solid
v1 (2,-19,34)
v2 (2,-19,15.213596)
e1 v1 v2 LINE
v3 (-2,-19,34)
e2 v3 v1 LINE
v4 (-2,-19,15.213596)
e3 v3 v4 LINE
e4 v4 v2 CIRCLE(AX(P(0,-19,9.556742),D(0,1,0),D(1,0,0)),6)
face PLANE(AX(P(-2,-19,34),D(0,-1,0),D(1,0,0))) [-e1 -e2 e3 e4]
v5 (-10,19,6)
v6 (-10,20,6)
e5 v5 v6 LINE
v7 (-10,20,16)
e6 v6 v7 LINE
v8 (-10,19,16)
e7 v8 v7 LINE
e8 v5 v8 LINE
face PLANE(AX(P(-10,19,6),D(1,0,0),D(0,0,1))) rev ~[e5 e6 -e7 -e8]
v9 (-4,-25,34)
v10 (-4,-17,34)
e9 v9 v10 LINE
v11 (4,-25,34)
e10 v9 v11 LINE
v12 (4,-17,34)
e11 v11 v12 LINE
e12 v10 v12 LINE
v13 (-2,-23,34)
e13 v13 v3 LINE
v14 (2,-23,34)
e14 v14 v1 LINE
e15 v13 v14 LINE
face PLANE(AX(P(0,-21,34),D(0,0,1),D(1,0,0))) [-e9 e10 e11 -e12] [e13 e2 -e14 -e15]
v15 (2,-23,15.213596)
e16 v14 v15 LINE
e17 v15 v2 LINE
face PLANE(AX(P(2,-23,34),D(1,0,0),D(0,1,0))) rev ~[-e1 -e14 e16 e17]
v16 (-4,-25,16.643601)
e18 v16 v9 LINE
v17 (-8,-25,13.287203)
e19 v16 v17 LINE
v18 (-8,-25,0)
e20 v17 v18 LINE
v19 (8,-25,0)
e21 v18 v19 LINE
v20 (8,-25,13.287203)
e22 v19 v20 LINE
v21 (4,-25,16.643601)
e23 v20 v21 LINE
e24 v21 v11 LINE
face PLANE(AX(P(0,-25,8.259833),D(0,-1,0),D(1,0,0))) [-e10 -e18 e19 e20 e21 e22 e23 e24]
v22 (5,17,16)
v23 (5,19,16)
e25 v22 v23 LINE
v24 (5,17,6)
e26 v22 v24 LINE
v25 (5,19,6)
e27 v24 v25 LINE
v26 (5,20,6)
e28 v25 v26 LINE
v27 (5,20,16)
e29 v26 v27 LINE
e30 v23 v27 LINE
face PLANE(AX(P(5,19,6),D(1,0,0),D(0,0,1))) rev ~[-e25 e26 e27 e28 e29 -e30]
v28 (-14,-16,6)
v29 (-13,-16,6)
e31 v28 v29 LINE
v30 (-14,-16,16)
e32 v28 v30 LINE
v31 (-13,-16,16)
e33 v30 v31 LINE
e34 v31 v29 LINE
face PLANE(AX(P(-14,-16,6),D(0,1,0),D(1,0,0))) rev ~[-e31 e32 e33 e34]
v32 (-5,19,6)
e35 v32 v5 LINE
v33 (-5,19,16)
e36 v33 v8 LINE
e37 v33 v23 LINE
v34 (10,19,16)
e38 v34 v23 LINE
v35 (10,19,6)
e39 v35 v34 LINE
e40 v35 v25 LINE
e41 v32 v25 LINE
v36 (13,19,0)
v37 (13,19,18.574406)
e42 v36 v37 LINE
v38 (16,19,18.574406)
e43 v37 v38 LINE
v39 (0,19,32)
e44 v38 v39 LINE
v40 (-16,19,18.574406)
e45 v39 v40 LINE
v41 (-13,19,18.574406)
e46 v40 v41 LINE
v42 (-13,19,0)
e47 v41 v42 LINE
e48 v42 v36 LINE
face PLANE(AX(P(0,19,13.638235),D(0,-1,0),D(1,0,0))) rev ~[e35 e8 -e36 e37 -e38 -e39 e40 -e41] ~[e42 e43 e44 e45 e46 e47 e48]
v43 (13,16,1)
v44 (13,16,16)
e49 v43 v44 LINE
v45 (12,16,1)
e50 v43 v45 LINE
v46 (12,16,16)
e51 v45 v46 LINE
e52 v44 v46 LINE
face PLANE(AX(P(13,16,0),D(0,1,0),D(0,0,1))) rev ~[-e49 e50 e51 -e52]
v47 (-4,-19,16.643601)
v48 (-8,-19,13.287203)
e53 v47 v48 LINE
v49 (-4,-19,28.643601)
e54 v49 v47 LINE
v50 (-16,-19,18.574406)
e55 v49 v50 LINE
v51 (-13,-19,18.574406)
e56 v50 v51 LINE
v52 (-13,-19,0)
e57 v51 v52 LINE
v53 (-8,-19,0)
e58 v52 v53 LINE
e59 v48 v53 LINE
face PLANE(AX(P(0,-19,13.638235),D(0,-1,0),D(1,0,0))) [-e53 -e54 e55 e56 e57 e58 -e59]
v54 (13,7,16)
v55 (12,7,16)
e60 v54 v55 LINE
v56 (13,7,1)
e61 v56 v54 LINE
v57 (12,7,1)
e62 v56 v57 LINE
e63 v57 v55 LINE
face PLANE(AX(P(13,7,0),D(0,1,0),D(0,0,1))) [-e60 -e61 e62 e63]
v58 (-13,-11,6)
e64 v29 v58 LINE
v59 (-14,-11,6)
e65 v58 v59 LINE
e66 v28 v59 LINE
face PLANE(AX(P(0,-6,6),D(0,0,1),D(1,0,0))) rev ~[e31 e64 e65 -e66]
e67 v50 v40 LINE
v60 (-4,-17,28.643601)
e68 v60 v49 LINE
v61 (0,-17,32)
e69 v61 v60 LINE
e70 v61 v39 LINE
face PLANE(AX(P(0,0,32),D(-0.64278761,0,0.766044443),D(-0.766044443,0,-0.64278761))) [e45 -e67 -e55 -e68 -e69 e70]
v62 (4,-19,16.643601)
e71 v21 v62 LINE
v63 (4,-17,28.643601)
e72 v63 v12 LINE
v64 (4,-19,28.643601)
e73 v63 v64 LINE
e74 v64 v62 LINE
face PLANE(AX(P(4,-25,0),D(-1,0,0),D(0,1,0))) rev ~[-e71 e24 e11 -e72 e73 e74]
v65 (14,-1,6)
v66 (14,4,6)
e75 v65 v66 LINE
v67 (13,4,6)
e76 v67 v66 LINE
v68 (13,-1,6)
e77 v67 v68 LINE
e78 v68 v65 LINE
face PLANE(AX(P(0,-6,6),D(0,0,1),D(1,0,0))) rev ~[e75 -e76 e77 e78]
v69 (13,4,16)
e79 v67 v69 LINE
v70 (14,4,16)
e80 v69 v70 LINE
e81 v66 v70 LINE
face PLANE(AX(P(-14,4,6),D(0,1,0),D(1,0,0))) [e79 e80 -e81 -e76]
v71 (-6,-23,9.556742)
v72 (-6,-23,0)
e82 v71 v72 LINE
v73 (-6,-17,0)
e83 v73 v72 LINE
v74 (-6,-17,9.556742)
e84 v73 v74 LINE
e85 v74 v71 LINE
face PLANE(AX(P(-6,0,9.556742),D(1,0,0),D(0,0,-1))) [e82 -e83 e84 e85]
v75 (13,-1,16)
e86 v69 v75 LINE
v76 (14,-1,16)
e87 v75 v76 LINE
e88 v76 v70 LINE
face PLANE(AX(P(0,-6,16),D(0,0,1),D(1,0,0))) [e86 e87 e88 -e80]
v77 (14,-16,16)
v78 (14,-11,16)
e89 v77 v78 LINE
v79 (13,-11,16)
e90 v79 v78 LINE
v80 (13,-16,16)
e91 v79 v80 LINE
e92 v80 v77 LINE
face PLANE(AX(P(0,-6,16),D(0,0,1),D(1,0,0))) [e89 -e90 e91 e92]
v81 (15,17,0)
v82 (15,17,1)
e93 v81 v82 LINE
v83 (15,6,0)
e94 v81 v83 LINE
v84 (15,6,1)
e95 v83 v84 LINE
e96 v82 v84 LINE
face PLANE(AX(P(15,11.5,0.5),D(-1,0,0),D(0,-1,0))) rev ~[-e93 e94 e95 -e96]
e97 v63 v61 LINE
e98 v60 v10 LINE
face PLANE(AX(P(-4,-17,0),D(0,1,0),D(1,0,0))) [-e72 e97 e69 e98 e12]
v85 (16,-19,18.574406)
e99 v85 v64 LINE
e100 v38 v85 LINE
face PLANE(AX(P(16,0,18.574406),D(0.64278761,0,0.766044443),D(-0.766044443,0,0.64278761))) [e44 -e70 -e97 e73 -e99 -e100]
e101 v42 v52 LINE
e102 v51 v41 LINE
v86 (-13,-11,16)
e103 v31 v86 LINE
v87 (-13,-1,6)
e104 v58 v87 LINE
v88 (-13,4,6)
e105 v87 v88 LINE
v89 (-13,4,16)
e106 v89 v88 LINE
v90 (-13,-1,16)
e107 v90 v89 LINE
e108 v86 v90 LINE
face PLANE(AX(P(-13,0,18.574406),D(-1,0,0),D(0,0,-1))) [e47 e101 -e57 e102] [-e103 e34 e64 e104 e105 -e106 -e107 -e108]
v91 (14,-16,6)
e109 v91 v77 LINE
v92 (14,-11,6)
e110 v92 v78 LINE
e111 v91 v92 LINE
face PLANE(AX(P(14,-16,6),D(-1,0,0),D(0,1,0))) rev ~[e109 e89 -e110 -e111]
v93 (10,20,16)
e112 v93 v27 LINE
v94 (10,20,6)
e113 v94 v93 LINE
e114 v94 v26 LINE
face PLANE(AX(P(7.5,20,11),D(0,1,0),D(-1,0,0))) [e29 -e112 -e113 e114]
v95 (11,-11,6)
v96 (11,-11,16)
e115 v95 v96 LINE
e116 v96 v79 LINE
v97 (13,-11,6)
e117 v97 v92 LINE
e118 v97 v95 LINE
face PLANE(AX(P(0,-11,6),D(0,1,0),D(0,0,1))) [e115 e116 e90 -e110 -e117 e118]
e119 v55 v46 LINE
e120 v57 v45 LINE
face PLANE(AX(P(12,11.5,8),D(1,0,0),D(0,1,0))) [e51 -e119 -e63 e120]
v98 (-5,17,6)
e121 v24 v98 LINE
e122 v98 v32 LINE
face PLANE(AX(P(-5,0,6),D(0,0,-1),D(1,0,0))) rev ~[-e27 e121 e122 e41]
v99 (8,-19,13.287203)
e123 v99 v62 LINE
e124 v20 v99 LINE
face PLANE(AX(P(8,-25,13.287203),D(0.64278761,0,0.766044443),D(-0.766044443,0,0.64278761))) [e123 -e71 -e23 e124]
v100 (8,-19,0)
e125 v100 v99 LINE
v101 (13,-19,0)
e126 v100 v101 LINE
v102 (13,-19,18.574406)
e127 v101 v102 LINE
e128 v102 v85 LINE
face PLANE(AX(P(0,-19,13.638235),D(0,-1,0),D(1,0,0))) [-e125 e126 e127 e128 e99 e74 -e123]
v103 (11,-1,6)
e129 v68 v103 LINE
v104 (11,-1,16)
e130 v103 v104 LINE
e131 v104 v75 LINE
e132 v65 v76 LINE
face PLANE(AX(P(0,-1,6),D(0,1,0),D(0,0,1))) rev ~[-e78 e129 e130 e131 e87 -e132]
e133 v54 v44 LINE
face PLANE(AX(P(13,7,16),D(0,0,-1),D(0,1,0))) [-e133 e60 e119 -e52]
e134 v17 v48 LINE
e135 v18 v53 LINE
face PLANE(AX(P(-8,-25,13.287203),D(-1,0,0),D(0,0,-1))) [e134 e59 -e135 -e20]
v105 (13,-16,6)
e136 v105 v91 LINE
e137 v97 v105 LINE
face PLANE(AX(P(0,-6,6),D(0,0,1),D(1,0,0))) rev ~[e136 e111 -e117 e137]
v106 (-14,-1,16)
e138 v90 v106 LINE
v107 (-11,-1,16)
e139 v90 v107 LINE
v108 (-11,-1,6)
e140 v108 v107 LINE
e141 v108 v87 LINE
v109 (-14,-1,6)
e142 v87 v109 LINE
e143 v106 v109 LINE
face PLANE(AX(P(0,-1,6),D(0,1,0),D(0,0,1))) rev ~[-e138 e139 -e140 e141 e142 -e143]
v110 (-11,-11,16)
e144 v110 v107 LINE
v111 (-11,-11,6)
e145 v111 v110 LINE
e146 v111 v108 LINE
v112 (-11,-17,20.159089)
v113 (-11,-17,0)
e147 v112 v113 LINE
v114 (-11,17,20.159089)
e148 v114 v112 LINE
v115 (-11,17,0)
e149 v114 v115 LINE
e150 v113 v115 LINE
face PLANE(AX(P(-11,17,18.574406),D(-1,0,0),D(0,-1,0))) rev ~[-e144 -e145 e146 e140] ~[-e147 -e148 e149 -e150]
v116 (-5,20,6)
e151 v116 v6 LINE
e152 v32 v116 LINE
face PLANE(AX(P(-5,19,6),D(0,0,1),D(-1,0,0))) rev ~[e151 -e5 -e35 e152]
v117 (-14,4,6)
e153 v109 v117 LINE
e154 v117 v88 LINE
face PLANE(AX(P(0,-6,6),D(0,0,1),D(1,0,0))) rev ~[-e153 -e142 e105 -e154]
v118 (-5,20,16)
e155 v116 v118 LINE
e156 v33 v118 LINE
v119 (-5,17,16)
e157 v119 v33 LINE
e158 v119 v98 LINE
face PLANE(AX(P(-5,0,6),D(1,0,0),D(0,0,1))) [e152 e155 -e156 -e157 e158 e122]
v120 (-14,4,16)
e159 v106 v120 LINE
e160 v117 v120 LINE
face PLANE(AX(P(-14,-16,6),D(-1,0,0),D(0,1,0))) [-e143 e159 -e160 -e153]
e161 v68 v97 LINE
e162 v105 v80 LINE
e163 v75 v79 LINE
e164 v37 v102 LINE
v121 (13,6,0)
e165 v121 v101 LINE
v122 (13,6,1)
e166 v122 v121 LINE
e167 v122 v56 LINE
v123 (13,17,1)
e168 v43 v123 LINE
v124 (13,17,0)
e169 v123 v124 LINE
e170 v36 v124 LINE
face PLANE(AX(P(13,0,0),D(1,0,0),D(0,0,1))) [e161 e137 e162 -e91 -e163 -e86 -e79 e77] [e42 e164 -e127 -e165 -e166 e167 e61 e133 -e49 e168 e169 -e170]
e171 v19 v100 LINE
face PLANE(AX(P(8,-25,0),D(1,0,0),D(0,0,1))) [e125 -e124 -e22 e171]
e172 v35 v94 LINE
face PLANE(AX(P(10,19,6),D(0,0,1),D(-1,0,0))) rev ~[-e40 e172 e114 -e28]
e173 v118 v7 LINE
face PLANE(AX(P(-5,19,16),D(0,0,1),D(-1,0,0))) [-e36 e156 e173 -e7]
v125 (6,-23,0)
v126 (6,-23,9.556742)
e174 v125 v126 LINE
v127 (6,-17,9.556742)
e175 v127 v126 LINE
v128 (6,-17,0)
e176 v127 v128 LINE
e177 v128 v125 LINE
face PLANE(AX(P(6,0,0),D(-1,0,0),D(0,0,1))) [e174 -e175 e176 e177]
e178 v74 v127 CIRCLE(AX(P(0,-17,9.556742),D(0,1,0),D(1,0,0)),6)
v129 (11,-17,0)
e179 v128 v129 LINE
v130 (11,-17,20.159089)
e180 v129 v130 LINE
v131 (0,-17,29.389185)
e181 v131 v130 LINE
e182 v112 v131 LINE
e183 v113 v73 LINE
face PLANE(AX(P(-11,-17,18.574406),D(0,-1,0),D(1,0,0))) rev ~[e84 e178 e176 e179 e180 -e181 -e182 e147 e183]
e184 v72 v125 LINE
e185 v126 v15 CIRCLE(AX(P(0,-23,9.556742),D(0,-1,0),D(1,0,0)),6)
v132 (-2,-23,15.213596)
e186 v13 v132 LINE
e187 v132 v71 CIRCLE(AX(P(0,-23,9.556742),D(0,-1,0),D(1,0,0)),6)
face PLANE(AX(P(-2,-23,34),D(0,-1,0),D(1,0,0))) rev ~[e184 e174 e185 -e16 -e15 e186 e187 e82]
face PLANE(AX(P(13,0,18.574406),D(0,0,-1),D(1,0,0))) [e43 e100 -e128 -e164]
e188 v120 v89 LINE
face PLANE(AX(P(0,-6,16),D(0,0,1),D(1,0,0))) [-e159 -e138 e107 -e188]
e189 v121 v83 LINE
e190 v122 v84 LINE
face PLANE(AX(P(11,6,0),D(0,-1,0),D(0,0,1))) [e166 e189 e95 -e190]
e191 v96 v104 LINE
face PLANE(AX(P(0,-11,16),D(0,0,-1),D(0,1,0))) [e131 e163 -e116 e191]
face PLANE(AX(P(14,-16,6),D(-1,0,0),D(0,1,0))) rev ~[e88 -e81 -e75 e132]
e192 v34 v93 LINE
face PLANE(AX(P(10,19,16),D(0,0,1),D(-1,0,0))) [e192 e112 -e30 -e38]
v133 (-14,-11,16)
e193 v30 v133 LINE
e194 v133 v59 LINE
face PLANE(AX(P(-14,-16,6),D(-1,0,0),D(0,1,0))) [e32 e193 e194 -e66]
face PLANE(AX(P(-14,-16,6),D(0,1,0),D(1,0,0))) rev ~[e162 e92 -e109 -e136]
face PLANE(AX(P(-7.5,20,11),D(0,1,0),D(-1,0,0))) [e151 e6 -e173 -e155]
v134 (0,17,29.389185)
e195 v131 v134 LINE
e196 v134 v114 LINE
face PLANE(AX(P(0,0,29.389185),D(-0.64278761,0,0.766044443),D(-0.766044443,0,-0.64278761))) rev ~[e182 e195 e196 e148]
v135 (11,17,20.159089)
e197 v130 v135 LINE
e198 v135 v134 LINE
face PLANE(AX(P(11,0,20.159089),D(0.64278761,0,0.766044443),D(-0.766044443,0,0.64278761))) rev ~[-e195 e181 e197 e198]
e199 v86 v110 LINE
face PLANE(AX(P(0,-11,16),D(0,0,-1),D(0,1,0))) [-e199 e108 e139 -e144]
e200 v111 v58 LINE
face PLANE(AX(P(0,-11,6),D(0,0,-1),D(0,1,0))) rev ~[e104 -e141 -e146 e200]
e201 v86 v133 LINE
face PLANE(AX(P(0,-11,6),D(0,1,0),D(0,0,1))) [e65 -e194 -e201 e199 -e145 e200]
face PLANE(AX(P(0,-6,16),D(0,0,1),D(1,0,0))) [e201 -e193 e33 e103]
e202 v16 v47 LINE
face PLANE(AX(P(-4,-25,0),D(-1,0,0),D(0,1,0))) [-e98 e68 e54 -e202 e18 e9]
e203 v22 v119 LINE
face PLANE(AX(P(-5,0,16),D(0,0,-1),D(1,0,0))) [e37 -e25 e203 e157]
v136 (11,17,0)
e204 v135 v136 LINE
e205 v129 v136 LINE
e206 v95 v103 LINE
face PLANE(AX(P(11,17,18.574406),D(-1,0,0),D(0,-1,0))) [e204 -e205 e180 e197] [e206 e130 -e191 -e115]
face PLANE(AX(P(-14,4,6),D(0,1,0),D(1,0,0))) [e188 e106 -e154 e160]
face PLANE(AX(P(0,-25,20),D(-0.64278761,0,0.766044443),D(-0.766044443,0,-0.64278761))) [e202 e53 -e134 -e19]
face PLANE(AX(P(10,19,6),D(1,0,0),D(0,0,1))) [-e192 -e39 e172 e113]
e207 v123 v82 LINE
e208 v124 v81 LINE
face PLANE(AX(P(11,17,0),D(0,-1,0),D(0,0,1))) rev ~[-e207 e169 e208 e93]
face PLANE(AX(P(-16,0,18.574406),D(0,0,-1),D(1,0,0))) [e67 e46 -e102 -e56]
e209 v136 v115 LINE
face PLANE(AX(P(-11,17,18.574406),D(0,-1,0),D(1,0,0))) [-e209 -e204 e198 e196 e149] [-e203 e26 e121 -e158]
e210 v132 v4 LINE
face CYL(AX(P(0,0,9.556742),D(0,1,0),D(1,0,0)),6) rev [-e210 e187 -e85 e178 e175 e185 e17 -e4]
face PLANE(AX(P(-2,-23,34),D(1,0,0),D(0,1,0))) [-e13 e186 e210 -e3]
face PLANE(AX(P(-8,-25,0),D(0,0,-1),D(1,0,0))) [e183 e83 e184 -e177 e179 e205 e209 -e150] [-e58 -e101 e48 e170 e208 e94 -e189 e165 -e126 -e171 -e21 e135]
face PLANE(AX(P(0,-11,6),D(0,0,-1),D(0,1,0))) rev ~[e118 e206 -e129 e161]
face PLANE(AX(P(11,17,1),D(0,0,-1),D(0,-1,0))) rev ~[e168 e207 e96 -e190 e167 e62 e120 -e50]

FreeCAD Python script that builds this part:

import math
import FreeCAD as App
import Part
import Sketcher

V = App.Vector
Q = App.Units.Quantity

doc = App.newDocument("Part")
params = doc.addObject("Spreadsheet::Sheet", "Params")
for row, (alias, value) in enumerate([
    ("sketch1_width", "26 mm"),
    ("sketch1_width2", "3 mm"),
    ("pad1_length", "38 mm"),
    ("sketch2_width", "10 mm"),
    ("sketch3_width", "28 mm"),
    ("sketch3_height", "20 mm"),
    ("pad2_length", "10 mm"),
    ("sketch4_width", "10 mm"),
    ("sketch5_width", "5 mm"),
    ("sketch5_height", "10 mm"),
    ("pad3_length", "1 mm"),
    ("sketch6_width", "22 mm"),
    ("sketch6_height", "34 mm"),
    ("sketch7_width", "22 mm"),
    ("pocket4_length", "17 mm"),
    ("pocket4_length2", "17 mm"),
    ("sketch8_width", "8 mm"),
    ("pad4_length", "34 mm"),
    ("sketch9_width", "16 mm"),
    ("sketch10_width", "4 mm"),
    ("sketch11_radius", "6 mm"),
    ("pocket6_length", "23 mm"),
    ("sketch12_width", "9 mm"),
    ("sketch12_height", "16 mm"),
    ("pocket7_length", "1 mm"),
    ("sketch13_width", "11 mm"),
    ("sketch13_height", "1 mm"),
    ("pad6_length", "4 mm"),
], start=1):
    params.set(f"A{row}", alias)
    params.set(f"B{row}", "=" + value)
    params.setAlias(f"B{row}", alias)

body = doc.addObject("PartDesign::Body", "Body")

sketch1 = doc.addObject("Sketcher::SketchObject", "Sketch")
body.addObject(sketch1)
sketch1.AttachmentSupport = (doc.XZ_Plane, [""])
sketch1.MapMode = "FlatFace"
sketch1.addGeometry(Part.LineSegment(V(-13, 18.574406, 0), V(-13, 0, 0)), False)
sketch1.addGeometry(Part.LineSegment(V(-13, 0, 0), V(13, 0, 0)), False)
sketch1.addGeometry(Part.LineSegment(V(13, 0, 0), V(13, 18.574406, 0)), False)
sketch1.addGeometry(Part.LineSegment(V(13, 18.574406, 0), V(16, 18.574406, 0)), False)
sketch1.addGeometry(Part.LineSegment(V(16, 18.574406, 0), V(0, 32, 0)), False)
sketch1.addGeometry(Part.LineSegment(V(0, 32, 0), V(-16, 18.574406, 0)), False)
sketch1.addGeometry(Part.LineSegment(V(-16, 18.574406, 0), V(-13, 18.574406, 0)), False)
sketch1.addConstraint(Sketcher.Constraint("Coincident", 0, 2, 1, 1))
sketch1.addConstraint(Sketcher.Constraint("Coincident", 1, 2, 2, 1))
sketch1.addConstraint(Sketcher.Constraint("Coincident", 2, 2, 3, 1))
sketch1.addConstraint(Sketcher.Constraint("Coincident", 3, 2, 4, 1))
sketch1.addConstraint(Sketcher.Constraint("Coincident", 4, 2, 5, 1))
sketch1.addConstraint(Sketcher.Constraint("Coincident", 5, 2, 6, 1))
sketch1.addConstraint(Sketcher.Constraint("Coincident", 6, 2, 0, 1))
sketch1.addConstraint(Sketcher.Constraint("Vertical", 0))
sketch1.addConstraint(Sketcher.Constraint("Horizontal", 1))
sketch1.addConstraint(Sketcher.Constraint("Vertical", 2))
sketch1.addConstraint(Sketcher.Constraint("Horizontal", 3))
sketch1.addConstraint(Sketcher.Constraint("Horizontal", 6))
sketch1.addConstraint(Sketcher.Constraint("Symmetric", 0, 2, 1, 2, -1, 1))
sketch1.addConstraint(Sketcher.Constraint("Symmetric", 3, 2, 5, 2, -2))
sketch1.addConstraint(Sketcher.Constraint("PointOnObject", 4, 2, -2))
sketch1.addConstraint(Sketcher.Constraint("DistanceX", 1, 1, 1, 2, Q("26 mm")))
sketch1.addConstraint(Sketcher.Constraint("DistanceX", 3, 1, 3, 2, Q("3 mm")))
sketch1.addConstraint(Sketcher.Constraint("Angle", 4, Q("140 deg")))
sketch1.addConstraint(Sketcher.Constraint("DistanceY", -1, 1, 4, 2, Q("32 mm")))
sketch1.setExpression("Constraints[15]", "Params.sketch1_width")
sketch1.setExpression("Constraints[16]", "Params.sketch1_width2")
pad1 = doc.addObject("PartDesign::Pad", "Pad")
body.addObject(pad1)
pad1.Profile = sketch1
pad1.setExpression("Length", "Params.pad1_length")
pad1.Midplane = True

sketch2 = doc.addObject("Sketcher::SketchObject", "Sketch001")
body.addObject(sketch2)
sketch2.AttachmentSupport = (doc.XZ_Plane, [""])
sketch2.MapMode = "FlatFace"
sketch2.addGeometry(Part.LineSegment(V(-5, 16, 0), V(-5, 6, 0)), False)
sketch2.addGeometry(Part.LineSegment(V(-5, 6, 0), V(5, 6, 0)), False)
sketch2.addGeometry(Part.LineSegment(V(5, 6, 0), V(5, 16, 0)), False)
sketch2.addGeometry(Part.LineSegment(V(5, 16, 0), V(-5, 16, 0)), False)
sketch2.addConstraint(Sketcher.Constraint("Coincident", 0, 2, 1, 1))
sketch2.addConstraint(Sketcher.Constraint("Coincident", 1, 2, 2, 1))
sketch2.addConstraint(Sketcher.Constraint("Coincident", 2, 2, 3, 1))
sketch2.addConstraint(Sketcher.Constraint("Coincident", 3, 2, 0, 1))
sketch2.addConstraint(Sketcher.Constraint("Vertical", 0))
sketch2.addConstraint(Sketcher.Constraint("Horizontal", 1))
sketch2.addConstraint(Sketcher.Constraint("Vertical", 2))
sketch2.addConstraint(Sketcher.Constraint("Horizontal", 3))
sketch2.addConstraint(Sketcher.Constraint("Equal", 3, 0))
sketch2.addConstraint(Sketcher.Constraint("DistanceX", 1, 1, 1, 2, Q("10 mm")))
sketch2.addConstraint(Sketcher.Constraint("DistanceX", 0, 2, -1, 1, Q("5 mm")))
sketch2.addConstraint(Sketcher.Constraint("DistanceY", -1, 1, 0, 2, Q("6 mm")))
sketch2.setExpression("Constraints[9]", "Params.sketch2_width")
pocket1 = doc.addObject("PartDesign::Pocket", "Pocket")
body.addObject(pocket1)
pocket1.Profile = sketch2
pocket1.Type = "ThroughAll"

sketch3 = doc.addObject("Sketcher::SketchObject", "Sketch002")
body.addObject(sketch3)
sketch3.AttachmentSupport = (doc.XY_Plane, [""])
sketch3.MapMode = "FlatFace"
sketch3.AttachmentOffset = App.Placement(V(0, 0, 6), App.Rotation())
sketch3.addGeometry(Part.LineSegment(V(-14, 4, 0), V(-14, -16, 0)), False)
sketch3.addGeometry(Part.LineSegment(V(-14, -16, 0), V(14, -16, 0)), False)
sketch3.addGeometry(Part.LineSegment(V(14, -16, 0), V(14, 4, 0)), False)
sketch3.addGeometry(Part.LineSegment(V(14, 4, 0), V(-14, 4, 0)), False)
sketch3.addConstraint(Sketcher.Constraint("Coincident", 0, 2, 1, 1))
sketch3.addConstraint(Sketcher.Constraint("Coincident", 1, 2, 2, 1))
sketch3.addConstraint(Sketcher.Constraint("Coincident", 2, 2, 3, 1))
sketch3.addConstraint(Sketcher.Constraint("Coincident", 3, 2, 0, 1))
sketch3.addConstraint(Sketcher.Constraint("Vertical", 0))
sketch3.addConstraint(Sketcher.Constraint("Horizontal", 1))
sketch3.addConstraint(Sketcher.Constraint("Vertical", 2))
sketch3.addConstraint(Sketcher.Constraint("Horizontal", 3))
sketch3.addConstraint(Sketcher.Constraint("DistanceX", 1, 1, 1, 2, Q("28 mm")))
sketch3.addConstraint(Sketcher.Constraint("DistanceY", 0, 2, 0, 1, Q("20 mm")))
sketch3.addConstraint(Sketcher.Constraint("DistanceX", 0, 2, -1, 1, Q("14 mm")))
sketch3.addConstraint(Sketcher.Constraint("DistanceY", 0, 2, -1, 1, Q("16 mm")))
sketch3.setExpression("Constraints[8]", "Params.sketch3_width")
sketch3.setExpression("Constraints[9]", "Params.sketch3_height")
pad2 = doc.addObject("PartDesign::Pad", "Pad001")
body.addObject(pad2)
pad2.Profile = sketch3
pad2.setExpression("Length", "Params.pad2_length")

sketch4 = doc.addObject("Sketcher::SketchObject", "Sketch003")
body.addObject(sketch4)
sketch4.AttachmentSupport = (doc.YZ_Plane, [""])
sketch4.MapMode = "FlatFace"
sketch4.addGeometry(Part.LineSegment(V(-11, 16, 0), V(-11, 6, 0)), False)
sketch4.addGeometry(Part.LineSegment(V(-11, 6, 0), V(-1, 6, 0)), False)
sketch4.addGeometry(Part.LineSegment(V(-1, 6, 0), V(-1, 16, 0)), False)
sketch4.addGeometry(Part.LineSegment(V(-1, 16, 0), V(-11, 16, 0)), False)
sketch4.addConstraint(Sketcher.Constraint("Coincident", 0, 2, 1, 1))
sketch4.addConstraint(Sketcher.Constraint("Coincident", 1, 2, 2, 1))
sketch4.addConstraint(Sketcher.Constraint("Coincident", 2, 2, 3, 1))
sketch4.addConstraint(Sketcher.Constraint("Coincident", 3, 2, 0, 1))
sketch4.addConstraint(Sketcher.Constraint("Vertical", 0))
sketch4.addConstraint(Sketcher.Constraint("Horizontal", 1))
sketch4.addConstraint(Sketcher.Constraint("Vertical", 2))
sketch4.addConstraint(Sketcher.Constraint("Horizontal", 3))
sketch4.addConstraint(Sketcher.Constraint("Equal", 3, 0))
sketch4.addConstraint(Sketcher.Constraint("DistanceX", 1, 1, 1, 2, Q("10 mm")))
sketch4.addConstraint(Sketcher.Constraint("DistanceX", 0, 2, -1, 1, Q("11 mm")))
sketch4.addConstraint(Sketcher.Constraint("DistanceY", -1, 1, 0, 2, Q("6 mm")))
sketch4.setExpression("Constraints[9]", "Params.sketch4_width")
pocket2 = doc.addObject("PartDesign::Pocket", "Pocket001")
body.addObject(pocket2)
pocket2.Profile = sketch4
pocket2.Type = "ThroughAll"
pocket2.Midplane = True

sketch5 = doc.addObject("Sketcher::SketchObject", "Sketch004")
body.addObject(sketch5)
sketch5.AttachmentSupport = (doc.XZ_Plane, [""])
sketch5.MapMode = "FlatFace"
sketch5.AttachmentOffset = App.Placement(V(0, 0, -19), App.Rotation())
sketch5.addGeometry(Part.LineSegment(V(10, 16, 0), V(10, 6, 0)), False)
sketch5.addGeometry(Part.LineSegment(V(10, 6, 0), V(5, 6, 0)), False)
sketch5.addGeometry(Part.LineSegment(V(5, 6, 0), V(5, 16, 0)), False)
sketch5.addGeometry(Part.LineSegment(V(5, 16, 0), V(10, 16, 0)), False)
sketch5.addGeometry(Part.LineSegment(V(-5, 16, 0), V(-5, 6, 0)), False)
sketch5.addGeometry(Part.LineSegment(V(-5, 6, 0), V(-10, 6, 0)), False)
sketch5.addGeometry(Part.LineSegment(V(-10, 6, 0), V(-10, 16, 0)), False)
sketch5.addGeometry(Part.LineSegment(V(-10, 16, 0), V(-5, 16, 0)), False)
sketch5.addConstraint(Sketcher.Constraint("Coincident", 0, 2, 1, 1))
sketch5.addConstraint(Sketcher.Constraint("Coincident", 1, 2, 2, 1))
sketch5.addConstraint(Sketcher.Constraint("Coincident", 2, 2, 3, 1))
sketch5.addConstraint(Sketcher.Constraint("Coincident", 3, 2, 0, 1))
sketch5.addConstraint(Sketcher.Constraint("Coincident", 4, 2, 5, 1))
sketch5.addConstraint(Sketcher.Constraint("Coincident", 5, 2, 6, 1))
sketch5.addConstraint(Sketcher.Constraint("Coincident", 6, 2, 7, 1))
sketch5.addConstraint(Sketcher.Constraint("Coincident", 7, 2, 4, 1))
sketch5.addConstraint(Sketcher.Constraint("Vertical", 0))
sketch5.addConstraint(Sketcher.Constraint("Horizontal", 1))
sketch5.addConstraint(Sketcher.Constraint("Vertical", 2))
sketch5.addConstraint(Sketcher.Constraint("Horizontal", 3))
sketch5.addConstraint(Sketcher.Constraint("Vertical", 4))
sketch5.addConstraint(Sketcher.Constraint("Horizontal", 5))
sketch5.addConstraint(Sketcher.Constraint("Vertical", 6))
sketch5.addConstraint(Sketcher.Constraint("Horizontal", 7))
sketch5.addConstraint(Sketcher.Constraint("Symmetric", 1, 2, 4, 2, -2))
sketch5.addConstraint(Sketcher.Constraint("Symmetric", 3, 2, 6, 2, -2))
sketch5.addConstraint(Sketcher.Constraint("DistanceX", 1, 2, 1, 1, Q("5 mm")))
sketch5.addConstraint(Sketcher.Constraint("DistanceY", 0, 2, 0, 1, Q("10 mm")))
sketch5.addConstraint(Sketcher.Constraint("DistanceX", -1, 1, 0, 2, Q("10 mm")))
sketch5.addConstraint(Sketcher.Constraint("DistanceY", -1, 1, 0, 2, Q("6 mm")))
sketch5.setExpression("Constraints[18]", "Params.sketch5_width")
sketch5.setExpression("Constraints[19]", "Params.sketch5_height")
pad3 = doc.addObject("PartDesign::Pad", "Pad002")
body.addObject(pad3)
pad3.Profile = sketch5
pad3.setExpression("Length", "Params.pad3_length")
pad3.Reversed = True

sketch6 = doc.addObject("Sketcher::SketchObject", "Sketch005")
body.addObject(sketch6)
sketch6.AttachmentSupport = (doc.XY_Plane, [""])
sketch6.MapMode = "FlatFace"
sketch6.AttachmentOffset = App.Placement(V(0, 0, 18.574406), App.Rotation())
sketch6.addGeometry(Part.LineSegment(V(-11, -17, 0), V(-11, 17, 0)), False)
sketch6.addGeometry(Part.LineSegment(V(-11, 17, 0), V(11, 17, 0)), False)
sketch6.addGeometry(Part.LineSegment(V(11, 17, 0), V(11, -17, 0)), False)
sketch6.addGeometry(Part.LineSegment(V(11, -17, 0), V(-11, -17, 0)), False)
sketch6.addConstraint(Sketcher.Constraint("Coincident", 0, 2, 1, 1))
sketch6.addConstraint(Sketcher.Constraint("Coincident", 1, 2, 2, 1))
sketch6.addConstraint(Sketcher.Constraint("Coincident", 2, 2, 3, 1))
sketch6.addConstraint(Sketcher.Constraint("Coincident", 3, 2, 0, 1))
sketch6.addConstraint(Sketcher.Constraint("Vertical", 0))
sketch6.addConstraint(Sketcher.Constraint("Horizontal", 1))
sketch6.addConstraint(Sketcher.Constraint("Vertical", 2))
sketch6.addConstraint(Sketcher.Constraint("Horizontal", 3))
sketch6.addConstraint(Sketcher.Constraint("Symmetric", 0, 2, 2, 2, -1, 1))
sketch6.addConstraint(Sketcher.Constraint("DistanceX", 1, 1, 1, 2, Q("22 mm")))
sketch6.addConstraint(Sketcher.Constraint("DistanceY", 0, 1, 0, 2, Q("34 mm")))
sketch6.setExpression("Constraints[9]", "Params.sketch6_width")
sketch6.setExpression("Constraints[10]", "Params.sketch6_height")
pocket3 = doc.addObject("PartDesign::Pocket", "Pocket002")
body.addObject(pocket3)
pocket3.Profile = sketch6
pocket3.Type = "ThroughAll"

sketch7 = doc.addObject("Sketcher::SketchObject", "Sketch006")
body.addObject(sketch7)
sketch7.AttachmentSupport = (doc.XZ_Plane, [""])
sketch7.MapMode = "FlatFace"
sketch7.addGeometry(Part.LineSegment(V(-11, 20.159089, 0), V(-11, 18.574406, 0)), False)
sketch7.addGeometry(Part.LineSegment(V(-11, 18.574406, 0), V(11, 18.574406, 0)), False)
sketch7.addGeometry(Part.LineSegment(V(11, 18.574406, 0), V(11, 20.159089, 0)), False)
sketch7.addGeometry(Part.LineSegment(V(11, 20.159089, 0), V(0, 29.389185, 0)), False)
sketch7.addGeometry(Part.LineSegment(V(0, 29.389185, 0), V(-11, 20.159089, 0)), False)
sketch7.addConstraint(Sketcher.Constraint("Coincident", 0, 2, 1, 1))
sketch7.addConstraint(Sketcher.Constraint("Coincident", 1, 2, 2, 1))
sketch7.addConstraint(Sketcher.Constraint("Coincident", 2, 2, 3, 1))
sketch7.addConstraint(Sketcher.Constraint("Coincident", 3, 2, 4, 1))
sketch7.addConstraint(Sketcher.Constraint("Coincident", 4, 2, 0, 1))
sketch7.addConstraint(Sketcher.Constraint("Vertical", 0))
sketch7.addConstraint(Sketcher.Constraint("Horizontal", 1))
sketch7.addConstraint(Sketcher.Constraint("Vertical", 2))
sketch7.addConstraint(Sketcher.Constraint("Symmetric", 2, 2, 4, 2, -2))
sketch7.addConstraint(Sketcher.Constraint("PointOnObject", 3, 2, -2))
sketch7.addConstraint(Sketcher.Constraint("DistanceX", 1, 1, 1, 2, Q("22 mm")))
sketch7.addConstraint(Sketcher.Constraint("Angle", 3, Q("140 deg")))
sketch7.addConstraint(Sketcher.Constraint("DistanceY", 0, 2, 0, 1, Q("1.584684 mm")))
sketch7.addConstraint(Sketcher.Constraint("DistanceY", -1, 1, 2, 2, Q("20.159089 mm")))
sketch7.setExpression("Constraints[10]", "Params.sketch7_width")
pocket4 = doc.addObject("PartDesign::Pocket", "Pocket003")
body.addObject(pocket4)
pocket4.Profile = sketch7
pocket4.Type = "TwoLengths"
pocket4.setExpression("Length", "Params.pocket4_length")
pocket4.setExpression("Length2", "Params.pocket4_length2")

sketch8 = doc.addObject("Sketcher::SketchObject", "Sketch007")
body.addObject(sketch8)
sketch8.AttachmentSupport = (doc.XY_Plane, [""])
sketch8.MapMode = "FlatFace"
sketch8.addGeometry(Part.LineSegment(V(-4, -17, 0), V(-4, -25, 0)), False)
sketch8.addGeometry(Part.LineSegment(V(-4, -25, 0), V(4, -25, 0)), False)
sketch8.addGeometry(Part.LineSegment(V(4, -25, 0), V(4, -17, 0)), False)
sketch8.addGeometry(Part.LineSegment(V(4, -17, 0), V(-4, -17, 0)), False)
sketch8.addConstraint(Sketcher.Constraint("Coincident", 0, 2, 1, 1))
sketch8.addConstraint(Sketcher.Constraint("Coincident", 1, 2, 2, 1))
sketch8.addConstraint(Sketcher.Constraint("Coincident", 2, 2, 3, 1))
sketch8.addConstraint(Sketcher.Constraint("Coincident", 3, 2, 0, 1))
sketch8.addConstraint(Sketcher.Constraint("Vertical", 0))
sketch8.addConstraint(Sketcher.Constraint("Horizontal", 1))
sketch8.addConstraint(Sketcher.Constraint("Vertical", 2))
sketch8.addConstraint(Sketcher.Constraint("Horizontal", 3))
sketch8.addConstraint(Sketcher.Constraint("Equal", 3, 0))
sketch8.addConstraint(Sketcher.Constraint("DistanceX", 1, 1, 1, 2, Q("8 mm")))
sketch8.addConstraint(Sketcher.Constraint("DistanceX", 0, 2, -1, 1, Q("4 mm")))
sketch8.addConstraint(Sketcher.Constraint("DistanceY", 0, 2, -1, 1, Q("25 mm")))
sketch8.setExpression("Constraints[9]", "Params.sketch8_width")
pad4 = doc.addObject("PartDesign::Pad", "Pad003")
body.addObject(pad4)
pad4.Profile = sketch8
pad4.setExpression("Length", "Params.pad4_length")

sketch9 = doc.addObject("Sketcher::SketchObject", "Sketch008")
body.addObject(sketch9)
sketch9.AttachmentSupport = (doc.XZ_Plane, [""])
sketch9.MapMode = "FlatFace"
sketch9.AttachmentOffset = App.Placement(V(0, 0, 25), App.Rotation())
sketch9.addGeometry(Part.LineSegment(V(8, 13.287203, 0), V(0, 20, 0)), False)
sketch9.addGeometry(Part.LineSegment(V(0, 20, 0), V(-8, 13.287203, 0)), False)
sketch9.addGeometry(Part.LineSegment(V(-8, 13.287203, 0), V(-8, 0, 0)), False)
sketch9.addGeometry(Part.LineSegment(V(-8, 0, 0), V(8, 0, 0)), False)
sketch9.addGeometry(Part.LineSegment(V(8, 0, 0), V(8, 13.287203, 0)), False)
sketch9.addConstraint(Sketcher.Constraint("Coincident", 0, 2, 1, 1))
sketch9.addConstraint(Sketcher.Constraint("Coincident", 1, 2, 2, 1))
sketch9.addConstraint(Sketcher.Constraint("Coincident", 2, 2, 3, 1))
sketch9.addConstraint(Sketcher.Constraint("Coincident", 3, 2, 4, 1))
sketch9.addConstraint(Sketcher.Constraint("Coincident", 4, 2, 0, 1))
sketch9.addConstraint(Sketcher.Constraint("Vertical", 2))
sketch9.addConstraint(Sketcher.Constraint("Horizontal", 3))
sketch9.addConstraint(Sketcher.Constraint("Vertical", 4))
sketch9.addConstraint(Sketcher.Constraint("Symmetric", 2, 2, 3, 2, -1, 1))
sketch9.addConstraint(Sketcher.Constraint("PointOnObject", 0, 2, -2))
sketch9.addConstraint(Sketcher.Constraint("Horizontal", 1, 2, 4, 2))
sketch9.addConstraint(Sketcher.Constraint("DistanceX", 3, 1, 3, 2, Q("16 mm")))
sketch9.addConstraint(Sketcher.Constraint("Angle", 0, Q("140 deg")))
sketch9.addConstraint(Sketcher.Constraint("DistanceY", -1, 1, 0, 2, Q("20 mm")))
sketch9.setExpression("Constraints[11]", "Params.sketch9_width")
pad5 = doc.addObject("PartDesign::Pad", "Pad004")
body.addObject(pad5)
pad5.Profile = sketch9
pad5.Type = "UpToLast"
pad5.Reversed = True

sketch10 = doc.addObject("Sketcher::SketchObject", "Sketch009")
body.addObject(sketch10)
sketch10.AttachmentSupport = (doc.XY_Plane, [""])
sketch10.MapMode = "FlatFace"
sketch10.AttachmentOffset = App.Placement(V(0, 0, 34), App.Rotation())
sketch10.addGeometry(Part.LineSegment(V(-2, -19, 0), V(-2, -23, 0)), False)
sketch10.addGeometry(Part.LineSegment(V(-2, -23, 0), V(2, -23, 0)), False)
sketch10.addGeometry(Part.LineSegment(V(2, -23, 0), V(2, -19, 0)), False)
sketch10.addGeometry(Part.LineSegment(V(2, -19, 0), V(-2, -19, 0)), False)
sketch10.addConstraint(Sketcher.Constraint("Coincident", 0, 2, 1, 1))
sketch10.addConstraint(Sketcher.Constraint("Coincident", 1, 2, 2, 1))
sketch10.addConstraint(Sketcher.Constraint("Coincident", 2, 2, 3, 1))
sketch10.addConstraint(Sketcher.Constraint("Coincident", 3, 2, 0, 1))
sketch10.addConstraint(Sketcher.Constraint("Vertical", 0))
sketch10.addConstraint(Sketcher.Constraint("Horizontal", 1))
sketch10.addConstraint(Sketcher.Constraint("Vertical", 2))
sketch10.addConstraint(Sketcher.Constraint("Horizontal", 3))
sketch10.addConstraint(Sketcher.Constraint("Equal", 3, 0))
sketch10.addConstraint(Sketcher.Constraint("DistanceX", 1, 1, 1, 2, Q("4 mm")))
sketch10.addConstraint(Sketcher.Constraint("DistanceX", 0, 2, -1, 1, Q("2 mm")))
sketch10.addConstraint(Sketcher.Constraint("DistanceY", 0, 2, -1, 1, Q("23 mm")))
sketch10.setExpression("Constraints[9]", "Params.sketch10_width")
pocket5 = doc.addObject("PartDesign::Pocket", "Pocket004")
body.addObject(pocket5)
pocket5.Profile = sketch10
pocket5.Type = "ThroughAll"

sketch11 = doc.addObject("Sketcher::SketchObject", "Sketch010")
body.addObject(sketch11)
sketch11.AttachmentSupport = (doc.XZ_Plane, [""])
sketch11.MapMode = "FlatFace"
sketch11.addGeometry(Part.ArcOfCircle(Part.Circle(V(0, 9.556742, 0), V(0, 0, 1), 6), math.radians(0), math.radians(180)), False)
sketch11.addGeometry(Part.LineSegment(V(-6, 9.556742, 0), V(-6, 0, 0)), False)
sketch11.addGeometry(Part.LineSegment(V(-6, 0, 0), V(6, 0, 0)), False)
sketch11.addGeometry(Part.LineSegment(V(6, 0, 0), V(6, 9.556742, 0)), False)
sketch11.addConstraint(Sketcher.Constraint("Tangent", 0, 2, 1, 1))
sketch11.addConstraint(Sketcher.Constraint("Coincident", 1, 2, 2, 1))
sketch11.addConstraint(Sketcher.Constraint("Coincident", 2, 2, 3, 1))
sketch11.addConstraint(Sketcher.Constraint("Tangent", 3, 2, 0, 1))
sketch11.addConstraint(Sketcher.Constraint("Vertical", 1))
sketch11.addConstraint(Sketcher.Constraint("Horizontal", 2))
sketch11.addConstraint(Sketcher.Constraint("Vertical", 3))
sketch11.addConstraint(Sketcher.Constraint("Symmetric", 1, 2, 2, 2, -1, 1))
sketch11.addConstraint(Sketcher.Constraint("Radius", 0, Q("6 mm")))
sketch11.addConstraint(Sketcher.Constraint("DistanceY", 1, 2, 1, 1, Q("9.556742 mm")))
sketch11.setExpression("Constraints[8]", "Params.sketch11_radius")
pocket6 = doc.addObject("PartDesign::Pocket", "Pocket005")
body.addObject(pocket6)
pocket6.Profile = sketch11
pocket6.setExpression("Length", "Params.pocket6_length")
pocket6.Reversed = True

sketch12 = doc.addObject("Sketcher::SketchObject", "Sketch011")
body.addObject(sketch12)
sketch12.AttachmentSupport = (doc.YZ_Plane, [""])
sketch12.MapMode = "FlatFace"
sketch12.AttachmentOffset = App.Placement(V(0, 0, 13), App.Rotation())
sketch12.addGeometry(Part.LineSegment(V(7, 16, 0), V(7, 0, 0)), False)
sketch12.addGeometry(Part.LineSegment(V(7, 0, 0), V(16, 0, 0)), False)
sketch12.addGeometry(Part.LineSegment(V(16, 0, 0), V(16, 16, 0)), False)
sketch12.addGeometry(Part.LineSegment(V(16, 16, 0), V(7, 16, 0)), False)
sketch12.addConstraint(Sketcher.Constraint("Coincident", 0, 2, 1, 1))
sketch12.addConstraint(Sketcher.Constraint("Coincident", 1, 2, 2, 1))
sketch12.addConstraint(Sketcher.Constraint("Coincident", 2, 2, 3, 1))
sketch12.addConstraint(Sketcher.Constraint("Coincident", 3, 2, 0, 1))
sketch12.addConstraint(Sketcher.Constraint("Vertical", 0))
sketch12.addConstraint(Sketcher.Constraint("Horizontal", 1))
sketch12.addConstraint(Sketcher.Constraint("Vertical", 2))
sketch12.addConstraint(Sketcher.Constraint("Horizontal", 3))
sketch12.addConstraint(Sketcher.Constraint("PointOnObject", 0, 2, -1))
sketch12.addConstraint(Sketcher.Constraint("DistanceX", 1, 1, 1, 2, Q("9 mm")))
sketch12.addConstraint(Sketcher.Constraint("DistanceY", 0, 2, 0, 1, Q("16 mm")))
sketch12.addConstraint(Sketcher.Constraint("DistanceX", -1, 1, 0, 2, Q("7 mm")))
sketch12.setExpression("Constraints[9]", "Params.sketch12_width")
sketch12.setExpression("Constraints[10]", "Params.sketch12_height")
pocket7 = doc.addObject("PartDesign::Pocket", "Pocket006")
body.addObject(pocket7)
pocket7.Profile = sketch12
pocket7.setExpression("Length", "Params.pocket7_length")

sketch13 = doc.addObject("Sketcher::SketchObject", "Sketch012")
body.addObject(sketch13)
sketch13.AttachmentSupport = (doc.YZ_Plane, [""])
sketch13.MapMode = "FlatFace"
sketch13.AttachmentOffset = App.Placement(V(0, 0, 11), App.Rotation())
sketch13.addGeometry(Part.LineSegment(V(17, 1, 0), V(17, 0, 0)), False)
sketch13.addGeometry(Part.LineSegment(V(17, 0, 0), V(6, 0, 0)), False)
sketch13.addGeometry(Part.LineSegment(V(6, 0, 0), V(6, 1, 0)), False)
sketch13.addGeometry(Part.LineSegment(V(6, 1, 0), V(17, 1, 0)), False)
sketch13.addConstraint(Sketcher.Constraint("Coincident", 0, 2, 1, 1))
sketch13.addConstraint(Sketcher.Constraint("Coincident", 1, 2, 2, 1))
sketch13.addConstraint(Sketcher.Constraint("Coincident", 2, 2, 3, 1))
sketch13.addConstraint(Sketcher.Constraint("Coincident", 3, 2, 0, 1))
sketch13.addConstraint(Sketcher.Constraint("Vertical", 0))
sketch13.addConstraint(Sketcher.Constraint("Horizontal", 1))
sketch13.addConstraint(Sketcher.Constraint("Vertical", 2))
sketch13.addConstraint(Sketcher.Constraint("Horizontal", 3))
sketch13.addConstraint(Sketcher.Constraint("PointOnObject", 0, 2, -1))
sketch13.addConstraint(Sketcher.Constraint("DistanceX", 1, 2, 1, 1, Q("11 mm")))
sketch13.addConstraint(Sketcher.Constraint("DistanceY", 0, 2, 0, 1, Q("1 mm")))
sketch13.addConstraint(Sketcher.Constraint("DistanceX", -1, 1, 0, 2, Q("17 mm")))
sketch13.setExpression("Constraints[9]", "Params.sketch13_width")
sketch13.setExpression("Constraints[10]", "Params.sketch13_height")
pad6 = doc.addObject("PartDesign::Pad", "Pad005")
body.addObject(pad6)
pad6.Profile = sketch13
pad6.setExpression("Length", "Params.pad6_length")

doc.recompute()
